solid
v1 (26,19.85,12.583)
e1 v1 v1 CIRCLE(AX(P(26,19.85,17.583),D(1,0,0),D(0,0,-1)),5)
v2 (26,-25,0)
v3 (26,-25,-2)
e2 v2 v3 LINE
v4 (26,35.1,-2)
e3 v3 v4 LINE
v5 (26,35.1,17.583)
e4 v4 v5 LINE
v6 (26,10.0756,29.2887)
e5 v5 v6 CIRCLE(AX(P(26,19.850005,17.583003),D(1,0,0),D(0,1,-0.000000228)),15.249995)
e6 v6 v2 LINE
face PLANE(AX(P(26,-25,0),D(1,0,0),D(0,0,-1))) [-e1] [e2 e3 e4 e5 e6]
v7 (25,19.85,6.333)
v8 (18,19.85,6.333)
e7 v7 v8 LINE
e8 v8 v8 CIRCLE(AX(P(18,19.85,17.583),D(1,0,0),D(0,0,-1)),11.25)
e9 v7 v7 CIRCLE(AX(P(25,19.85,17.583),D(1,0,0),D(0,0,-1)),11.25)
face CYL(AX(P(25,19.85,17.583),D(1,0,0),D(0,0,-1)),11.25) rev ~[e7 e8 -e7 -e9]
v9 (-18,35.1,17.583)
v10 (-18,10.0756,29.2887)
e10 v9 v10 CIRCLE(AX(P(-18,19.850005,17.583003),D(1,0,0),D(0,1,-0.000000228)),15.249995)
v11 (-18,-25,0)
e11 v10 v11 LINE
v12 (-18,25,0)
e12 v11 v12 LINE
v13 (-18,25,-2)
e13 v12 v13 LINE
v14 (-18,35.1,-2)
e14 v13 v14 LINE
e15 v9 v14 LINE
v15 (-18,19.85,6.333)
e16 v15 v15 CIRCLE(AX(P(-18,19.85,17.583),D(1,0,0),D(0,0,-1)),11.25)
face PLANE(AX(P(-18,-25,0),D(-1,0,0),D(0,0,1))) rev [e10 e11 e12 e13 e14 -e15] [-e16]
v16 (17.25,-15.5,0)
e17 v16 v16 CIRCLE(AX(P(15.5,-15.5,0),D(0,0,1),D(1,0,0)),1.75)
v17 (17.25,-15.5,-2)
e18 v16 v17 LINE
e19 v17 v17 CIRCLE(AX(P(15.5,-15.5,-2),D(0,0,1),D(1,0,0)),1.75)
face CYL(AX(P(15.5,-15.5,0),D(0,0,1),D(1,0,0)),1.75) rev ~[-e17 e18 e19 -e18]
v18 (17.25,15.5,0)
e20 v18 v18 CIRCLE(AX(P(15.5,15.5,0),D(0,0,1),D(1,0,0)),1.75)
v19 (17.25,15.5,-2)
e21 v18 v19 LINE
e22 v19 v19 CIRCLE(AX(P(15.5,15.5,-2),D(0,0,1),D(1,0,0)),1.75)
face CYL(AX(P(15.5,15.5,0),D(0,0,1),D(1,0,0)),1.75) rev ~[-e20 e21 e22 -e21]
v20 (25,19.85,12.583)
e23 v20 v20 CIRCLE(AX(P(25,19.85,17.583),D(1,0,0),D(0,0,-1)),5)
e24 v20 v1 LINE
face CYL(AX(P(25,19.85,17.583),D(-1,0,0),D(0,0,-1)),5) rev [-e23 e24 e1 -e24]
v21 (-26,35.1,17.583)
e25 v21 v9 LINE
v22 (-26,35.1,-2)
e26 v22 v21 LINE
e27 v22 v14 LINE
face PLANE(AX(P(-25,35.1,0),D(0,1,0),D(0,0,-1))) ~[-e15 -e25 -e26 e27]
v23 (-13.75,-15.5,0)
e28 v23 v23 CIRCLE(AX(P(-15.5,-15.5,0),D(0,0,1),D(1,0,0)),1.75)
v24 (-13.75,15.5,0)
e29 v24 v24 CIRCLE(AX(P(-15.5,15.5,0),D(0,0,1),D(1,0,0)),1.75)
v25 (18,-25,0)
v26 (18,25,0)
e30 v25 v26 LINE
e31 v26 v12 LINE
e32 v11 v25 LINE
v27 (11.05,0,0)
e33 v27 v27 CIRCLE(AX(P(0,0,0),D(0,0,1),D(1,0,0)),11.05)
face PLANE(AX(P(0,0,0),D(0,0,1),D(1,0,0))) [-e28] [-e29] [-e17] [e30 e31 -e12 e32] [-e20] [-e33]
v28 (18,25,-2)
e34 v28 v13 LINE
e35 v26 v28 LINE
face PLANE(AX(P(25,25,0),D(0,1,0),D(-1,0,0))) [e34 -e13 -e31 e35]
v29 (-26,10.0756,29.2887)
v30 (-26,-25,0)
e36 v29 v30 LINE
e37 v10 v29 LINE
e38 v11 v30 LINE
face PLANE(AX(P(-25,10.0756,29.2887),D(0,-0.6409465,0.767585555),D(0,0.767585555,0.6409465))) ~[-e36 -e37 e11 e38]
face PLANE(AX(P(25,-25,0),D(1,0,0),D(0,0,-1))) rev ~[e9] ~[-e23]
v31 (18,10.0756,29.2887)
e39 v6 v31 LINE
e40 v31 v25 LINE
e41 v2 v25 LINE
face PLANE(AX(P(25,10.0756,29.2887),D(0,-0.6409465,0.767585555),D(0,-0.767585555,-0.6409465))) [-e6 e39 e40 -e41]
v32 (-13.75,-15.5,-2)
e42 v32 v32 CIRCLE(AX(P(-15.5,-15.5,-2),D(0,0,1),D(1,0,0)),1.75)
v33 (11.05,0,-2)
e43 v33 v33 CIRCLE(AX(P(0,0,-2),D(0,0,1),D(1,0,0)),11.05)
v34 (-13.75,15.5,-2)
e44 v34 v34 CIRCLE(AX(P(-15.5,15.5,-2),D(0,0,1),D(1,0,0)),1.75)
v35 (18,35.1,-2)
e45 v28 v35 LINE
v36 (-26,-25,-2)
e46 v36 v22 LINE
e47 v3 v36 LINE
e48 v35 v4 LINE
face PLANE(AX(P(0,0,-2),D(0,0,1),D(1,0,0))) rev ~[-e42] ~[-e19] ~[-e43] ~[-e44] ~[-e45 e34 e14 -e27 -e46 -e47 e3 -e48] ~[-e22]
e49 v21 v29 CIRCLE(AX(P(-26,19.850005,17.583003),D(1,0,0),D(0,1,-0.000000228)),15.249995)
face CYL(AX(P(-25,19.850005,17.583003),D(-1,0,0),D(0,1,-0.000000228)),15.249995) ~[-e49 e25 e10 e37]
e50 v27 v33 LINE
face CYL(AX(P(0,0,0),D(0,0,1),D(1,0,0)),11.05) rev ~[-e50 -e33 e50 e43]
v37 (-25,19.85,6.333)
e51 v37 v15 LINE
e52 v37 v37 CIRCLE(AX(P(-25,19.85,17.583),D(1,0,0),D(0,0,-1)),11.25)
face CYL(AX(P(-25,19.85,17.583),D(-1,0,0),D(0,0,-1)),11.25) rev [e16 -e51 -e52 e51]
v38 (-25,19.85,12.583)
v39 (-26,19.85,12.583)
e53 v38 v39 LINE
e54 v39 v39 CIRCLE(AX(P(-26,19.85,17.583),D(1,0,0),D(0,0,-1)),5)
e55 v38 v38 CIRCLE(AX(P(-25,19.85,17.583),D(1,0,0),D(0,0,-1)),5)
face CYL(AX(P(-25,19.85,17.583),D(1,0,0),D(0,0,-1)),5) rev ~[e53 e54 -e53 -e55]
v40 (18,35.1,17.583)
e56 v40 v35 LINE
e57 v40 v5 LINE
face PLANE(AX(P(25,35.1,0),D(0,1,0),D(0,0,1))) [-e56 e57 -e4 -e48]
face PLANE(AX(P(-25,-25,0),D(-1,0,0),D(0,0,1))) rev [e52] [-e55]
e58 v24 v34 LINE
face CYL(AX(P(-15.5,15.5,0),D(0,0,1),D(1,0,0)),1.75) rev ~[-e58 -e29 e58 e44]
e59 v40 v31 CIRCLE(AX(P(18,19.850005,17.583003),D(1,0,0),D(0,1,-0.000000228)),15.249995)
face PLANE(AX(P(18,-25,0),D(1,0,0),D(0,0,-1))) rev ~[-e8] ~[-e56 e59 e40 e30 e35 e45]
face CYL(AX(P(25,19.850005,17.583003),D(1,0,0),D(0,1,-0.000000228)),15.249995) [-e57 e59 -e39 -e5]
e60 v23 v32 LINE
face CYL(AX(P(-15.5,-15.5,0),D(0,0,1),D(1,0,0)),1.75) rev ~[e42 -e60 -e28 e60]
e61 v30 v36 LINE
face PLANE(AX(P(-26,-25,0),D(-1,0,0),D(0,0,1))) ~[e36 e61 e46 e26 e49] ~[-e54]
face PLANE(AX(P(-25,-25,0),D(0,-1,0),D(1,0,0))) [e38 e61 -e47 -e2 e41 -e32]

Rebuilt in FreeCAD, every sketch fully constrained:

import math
import FreeCAD as App
import Part
import Sketcher
from FreeCAD import Vector
Q = App.Units.Quantity


def add_polygon(sketch, points):
    """Adds a closed chain of lines whose ends are joined by coincident constraints."""
    first, n = sketch.GeometryCount, len(points)
    for a, b in zip(points, points[1:] + points[:1]):
        sketch.addGeometry(Part.LineSegment(App.Vector(*a, 0), App.Vector(*b, 0)), False)
    for i in range(n):
        sketch.addConstraint(Sketcher.Constraint("Coincident", first + i, 2, first + (i + 1) % n, 1))

doc = App.newDocument("Part")
params = doc.addObject("Spreadsheet::Sheet", "Params")
for row, (alias, value) in enumerate([
    ("sketch1_diameter", "3.5 mm"),
    ("sketch1_diameter2", "22.1 mm"),
    ("sketch1_width", "50 mm"),
    ("pad1_length", "2 mm"),
    ("sketch2_diameter", "22.5 mm"),
    ("sketch2_height", "2 mm"),
    ("sketch2_width", "50 mm"),
    ("sketch2_radius", "15.25 mm"),
    ("pad2_length", "7 mm"),
    ("sketch3_diameter", "10 mm"),
    ("sketch3_height", "2 mm"),
    ("sketch3_radius", "15.25 mm"),
    ("sketch3_width", "60.1 mm"),
    ("pad3_length", "1 mm"),
], start=1):
    params.set(f"A{row}", alias)
    params.set(f"B{row}", "=" + value)
    params.setAlias(f"B{row}", alias)

body = doc.addObject("PartDesign::Body", "Body")

sketch1 = body.newObject("Sketcher::SketchObject", "Sketch")
sketch1.AttachmentSupport = (doc.getObject("XY_Plane"), [""])
sketch1.MapMode = "FlatFace"
add_polygon(sketch1, [(25, 25), (-25, 25), (-25, -25), (25, -25)])
sketch1.addGeometry(Part.Circle(Vector(-15.5, -15.5, 0), Vector(0, 0, 1), 1.8), False)
sketch1.addGeometry(Part.Circle(Vector(15.5, -15.5, 0), Vector(0, 0, 1), 1.8), False)
sketch1.addGeometry(Part.Circle(Vector(-15.5, 15.5, 0), Vector(0, 0, 1), 1.8), False)
sketch1.addGeometry(Part.Circle(Vector(0, 0, 0), Vector(0, 0, 1), 11.1), False)
sketch1.addGeometry(Part.Circle(Vector(15.5, 15.5, 0), Vector(0, 0, 1), 1.8), False)
sketch1.addConstraint(Sketcher.Constraint("Horizontal", 0))
sketch1.addConstraint(Sketcher.Constraint("Vertical", 1))
sketch1.addConstraint(Sketcher.Constraint("Horizontal", 2))
sketch1.addConstraint(Sketcher.Constraint("Vertical", 3))
sketch1.addConstraint(Sketcher.Constraint("Coincident", 7, 3, -1, 1))
sketch1.addConstraint(Sketcher.Constraint("Equal", 4, 5))
sketch1.addConstraint(Sketcher.Constraint("Equal", 5, 6))
sketch1.addConstraint(Sketcher.Constraint("Equal", 6, 8))
sketch1.addConstraint(Sketcher.Constraint("Symmetric", 5, 3, 6, 3, -1, 1))
sketch1.addConstraint(Sketcher.Constraint("Symmetric", 4, 3, 8, 3, -1, 1))
sketch1.addConstraint(Sketcher.Constraint("Symmetric", 0, 2, 2, 2, -1, 1))
sketch1.addConstraint(Sketcher.Constraint("Symmetric", 4, 3, 5, 3, -2))
sketch1.addConstraint(Sketcher.Constraint("Equal", 2, 1))
sketch1.addConstraint(Sketcher.Constraint("Diameter", 4, Q("3.5 mm")))
sketch1.addConstraint(Sketcher.Constraint("Diameter", 7, Q("22.1 mm")))
sketch1.addConstraint(Sketcher.Constraint("DistanceX", 0, 2, 0, 1, Q("50 mm")))
sketch1.addConstraint(Sketcher.Constraint("DistanceX", 4, 3, 5, 3, Q("31 mm")))
sketch1.addConstraint(Sketcher.Constraint("DistanceY", 4, 3, 6, 3, Q("31 mm")))
sketch1.setExpression("Constraints[17]", "Params.sketch1_diameter")
sketch1.setExpression("Constraints[18]", "Params.sketch1_diameter2")
sketch1.setExpression("Constraints[19]", "Params.sketch1_width")
pad1 = body.newObject("PartDesign::Pad", "Pad")
pad1.Profile = sketch1
pad1.setExpression("Length", "Params.pad1_length")
pad1.Reversed = True

sketch2 = body.newObject("Sketcher::SketchObject", "Sketch001")
sketch2.AttachmentSupport = (doc.getObject("YZ_Plane"), [""])
sketch2.MapMode = "FlatFace"
sketch2.AttachmentOffset = App.Placement(Vector(0, 0, 25), App.Rotation())
sketch2.addGeometry(Part.LineSegment(Vector(10.1, 29.3, 0), Vector(-25, 0, 0)), False)
sketch2.addGeometry(Part.LineSegment(Vector(-25, 0, 0), Vector(25, 0, 0)), False)
sketch2.addGeometry(Part.LineSegment(Vector(25, 0, 0), Vector(25, -2, 0)), False)
sketch2.addGeometry(Part.LineSegment(Vector(25, -2, 0), Vector(35.1, -2, 0)), False)
sketch2.addGeometry(Part.LineSegment(Vector(35.1, -2, 0), Vector(35.1, 17.6, 0)), False)
sketch2.addGeometry(Part.ArcOfCircle(Part.Circle(Vector(19.9, 17.6, 0), Vector(0, 0, 1), 15.2), math.radians(0), math.radians(130)), False)
sketch2.addGeometry(Part.Circle(Vector(19.9, 17.6, 0), Vector(0, 0, 1), 11.2), False)
sketch2.addConstraint(Sketcher.Constraint("Coincident", 0, 2, 1, 1))
sketch2.addConstraint(Sketcher.Constraint("Coincident", 1, 2, 2, 1))
sketch2.addConstraint(Sketcher.Constraint("Coincident", 2, 2, 3, 1))
sketch2.addConstraint(Sketcher.Constraint("Coincident", 3, 2, 4, 1))
sketch2.addConstraint(Sketcher.Constraint("Tangent", 4, 2, 5, 1))
sketch2.addConstraint(Sketcher.Constraint("Tangent", 5, 2, 0, 1))
sketch2.addConstraint(Sketcher.Constraint("Horizontal", 1))
sketch2.addConstraint(Sketcher.Constraint("Vertical", 2))
sketch2.addConstraint(Sketcher.Constraint("Horizontal", 3))
sketch2.addConstraint(Sketcher.Constraint("Vertical", 4))
sketch2.addConstraint(Sketcher.Constraint("Coincident", 6, 3, 5, 3))
sketch2.addConstraint(Sketcher.Constraint("Symmetric", 0, 2, 1, 2, -1, 1))
sketch2.addConstraint(Sketcher.Constraint("Diameter", 6, Q("22.5 mm")))
sketch2.addConstraint(Sketcher.Constraint("DistanceY", 2, 2, 2, 1, Q("2 mm")))
sketch2.addConstraint(Sketcher.Constraint("DistanceX", 1, 1, 1, 2, Q("50 mm")))
sketch2.addConstraint(Sketcher.Constraint("DistanceY", 4, 1, 4, 2, Q("19.583 mm")))
sketch2.addConstraint(Sketcher.Constraint("DistanceX", -1, 1, 5, 3, Q("19.85 mm")))
sketch2.addConstraint(Sketcher.Constraint("Radius", 5, Q("15.25 mm")))
sketch2.setExpression("Constraints[12]", "Params.sketch2_diameter")
sketch2.setExpression("Constraints[13]", "Params.sketch2_height")
sketch2.setExpression("Constraints[14]", "Params.sketch2_width")
sketch2.setExpression("Constraints[17]", "Params.sketch2_radius")
pad2 = body.newObject("PartDesign::Pad", "Pad001")
pad2.Profile = sketch2
pad2.setExpression("Length", "Params.pad2_length")
pad2.Reversed = True

sketch3 = body.newObject("Sketcher::SketchObject", "Sketch002")
sketch3.AttachmentSupport = (doc.getObject("YZ_Plane"), [""])
sketch3.MapMode = "FlatFace"
sketch3.AttachmentOffset = App.Placement(Vector(0, 0, 25), App.Rotation())
sketch3.addGeometry(Part.LineSegment(Vector(10.1, 29.3, 0), Vector(-25, 0, 0)), False)
sketch3.addGeometry(Part.LineSegment(Vector(-25, 0, 0), Vector(-25, -2, 0)), False)
sketch3.addGeometry(Part.LineSegment(Vector(-25, -2, 0), Vector(35.1, -2, 0)), False)
sketch3.addGeometry(Part.LineSegment(Vector(35.1, -2, 0), Vector(35.1, 17.6, 0)), False)
sketch3.addGeometry(Part.ArcOfCircle(Part.Circle(Vector(19.9, 17.6, 0), Vector(0, 0, 1), 15.2), math.radians(0), math.radians(130)), False)
sketch3.addGeometry(Part.Circle(Vector(19.9, 17.6, 0), Vector(0, 0, 1), 5), False)
sketch3.addConstraint(Sketcher.Constraint("Coincident", 0, 2, 1, 1))
sketch3.addConstraint(Sketcher.Constraint("Coincident", 1, 2, 2, 1))
sketch3.addConstraint(Sketcher.Constraint("Coincident", 2, 2, 3, 1))
sketch3.addConstraint(Sketcher.Constraint("Tangent", 3, 2, 4, 1))
sketch3.addConstraint(Sketcher.Constraint("Tangent", 4, 2, 0, 1))
sketch3.addConstraint(Sketcher.Constraint("Vertical", 1))
sketch3.addConstraint(Sketcher.Constraint("Horizontal", 2))
sketch3.addConstraint(Sketcher.Constraint("Vertical", 3))
sketch3.addConstraint(Sketcher.Constraint("Coincident", 5, 3, 4, 3))
sketch3.addConstraint(Sketcher.Constraint("PointOnObject", 0, 2, -1))
sketch3.addConstraint(Sketcher.Constraint("Diameter", 5, Q("10 mm")))
sketch3.addConstraint(Sketcher.Constraint("DistanceY", 1, 2, 1, 1, Q("2 mm")))
sketch3.addConstraint(Sketcher.Constraint("DistanceY", 3, 1, 3, 2, Q("19.583 mm")))
sketch3.addConstraint(Sketcher.Constraint("DistanceX", -1, 1, 4, 3, Q("19.85 mm")))
sketch3.addConstraint(Sketcher.Constraint("Radius", 4, Q("15.25 mm")))
sketch3.addConstraint(Sketcher.Constraint("DistanceX", 2, 1, 2, 2, Q("60.1 mm")))
sketch3.setExpression("Constraints[10]", "Params.sketch3_diameter")
sketch3.setExpression("Constraints[11]", "Params.sketch3_height")
sketch3.setExpression("Constraints[14]", "Params.sketch3_radius")
sketch3.setExpression("Constraints[15]", "Params.sketch3_width")
pad3 = body.newObject("PartDesign::Pad", "Pad002")
pad3.Profile = sketch3
pad3.setExpression("Length", "Params.pad3_length")
doc.recompute()

mirrored = body.newObject("PartDesign::Mirrored", "Mirrored")
mirrored.Originals = [pad2, pad3]
mirrored.MirrorPlane = (doc.getObject("YZ_Plane"), [""])
body.Tip = mirrored

doc.recompute()
